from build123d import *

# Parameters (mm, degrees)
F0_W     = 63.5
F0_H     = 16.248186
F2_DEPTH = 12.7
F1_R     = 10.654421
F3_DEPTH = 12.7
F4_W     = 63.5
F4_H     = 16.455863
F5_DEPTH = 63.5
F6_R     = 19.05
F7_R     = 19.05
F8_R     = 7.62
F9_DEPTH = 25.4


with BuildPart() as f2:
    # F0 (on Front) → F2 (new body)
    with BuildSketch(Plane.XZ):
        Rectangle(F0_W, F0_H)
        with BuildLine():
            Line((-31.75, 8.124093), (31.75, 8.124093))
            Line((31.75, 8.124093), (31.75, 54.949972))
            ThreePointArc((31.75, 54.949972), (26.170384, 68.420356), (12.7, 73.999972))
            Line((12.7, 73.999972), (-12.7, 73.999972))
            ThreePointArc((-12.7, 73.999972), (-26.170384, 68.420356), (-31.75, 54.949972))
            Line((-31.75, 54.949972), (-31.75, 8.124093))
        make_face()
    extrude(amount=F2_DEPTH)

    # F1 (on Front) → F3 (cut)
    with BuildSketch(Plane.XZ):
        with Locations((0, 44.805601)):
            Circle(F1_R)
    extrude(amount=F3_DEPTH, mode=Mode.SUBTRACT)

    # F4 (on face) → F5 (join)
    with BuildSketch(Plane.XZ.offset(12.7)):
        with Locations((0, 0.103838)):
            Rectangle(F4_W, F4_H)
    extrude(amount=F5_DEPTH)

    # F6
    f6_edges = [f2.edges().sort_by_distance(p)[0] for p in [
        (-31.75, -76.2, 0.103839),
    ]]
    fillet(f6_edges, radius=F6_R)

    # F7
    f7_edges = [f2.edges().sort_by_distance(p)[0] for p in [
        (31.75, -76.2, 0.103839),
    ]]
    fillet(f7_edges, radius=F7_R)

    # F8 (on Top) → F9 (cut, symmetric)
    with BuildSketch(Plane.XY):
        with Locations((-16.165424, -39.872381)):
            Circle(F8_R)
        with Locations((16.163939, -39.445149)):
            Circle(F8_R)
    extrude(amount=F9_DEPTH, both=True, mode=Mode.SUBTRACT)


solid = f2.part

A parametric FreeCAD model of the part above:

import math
import FreeCAD as App
import Part
import Sketcher
from FreeCAD import Vector
Q = App.Units.Quantity


def edges_at(feature, points):
    """Names of the edges that pass closest to the given points."""
    edges = feature.Shape.Edges
    near = lambda p: min(range(len(edges)), key=lambda i: edges[i].distToShape(Part.Vertex(*p))[0])
    return sorted({f"Edge{near(p) + 1}" for p in points})

doc = App.newDocument("Part")
body = doc.addObject("PartDesign::Body", "Body")

sketch1 = body.newObject("Sketcher::SketchObject", "Sketch")
sketch1.AttachmentSupport = (doc.getObject("XZ_Plane"), [""])
sketch1.MapMode = "FlatFace"
sketch1.addGeometry([
    Part.LineSegment(Vector(-32, -8, 0), Vector(32, -8, 0)),
    Part.LineSegment(Vector(32, -8, 0), Vector(32, 55, 0)),
    Part.ArcOfCircle(Part.Circle(Vector(13, 55, 0), Vector(0, 0, 1), 19), math.radians(0), math.radians(90)),
    Part.LineSegment(Vector(13, 74, 0), Vector(-13, 74, 0)),
    Part.ArcOfCircle(Part.Circle(Vector(-13, 55, 0), Vector(0, 0, 1), 19), math.radians(90), math.radians(180)),
    Part.LineSegment(Vector(-32, 55, 0), Vector(-32, -8, 0)),
], False)
sketch1.addConstraint([
    Sketcher.Constraint("Coincident", 0, 2, 1, 1),
    Sketcher.Constraint("Tangent", 1, 2, 2, 1),
    Sketcher.Constraint("Tangent", 2, 2, 3, 1),
    Sketcher.Constraint("Tangent", 3, 2, 4, 1),
    Sketcher.Constraint("Tangent", 4, 2, 5, 1),
    Sketcher.Constraint("Coincident", 5, 2, 0, 1),
    Sketcher.Constraint("Horizontal", 0),
    Sketcher.Constraint("Vertical", 1),
    Sketcher.Constraint("Horizontal", 3),
    Sketcher.Constraint("Vertical", 5),
    Sketcher.Constraint("Equal", 2, 4),
    Sketcher.Constraint("DistanceX", 3, 2, 3, 1, Q("1 in")),
    Sketcher.Constraint("Radius", 2, Q("0.75 in")),
    Sketcher.Constraint("DistanceX", -1, 1, 2, 3, Q("0.5 in")),
    Sketcher.Constraint("DistanceY", 1, 1, 1, 2, 63.074065),
    Sketcher.Constraint("DistanceY", -1, 1, 2, 3, 54.949971),
])
pad1 = body.newObject("PartDesign::Pad", "Pad")
pad1.Profile = sketch1
pad1.Length = Q("0.5 in")

sketch2 = body.newObject("Sketcher::SketchObject", "Sketch001")
sketch2.AttachmentSupport = (doc.getObject("XZ_Plane"), [""])
sketch2.MapMode = "FlatFace"
sketch2.addGeometry(Part.Circle(Vector(0, 45, 0), Vector(0, 0, 1), 11), False)
sketch2.addConstraint([
    Sketcher.Constraint("PointOnObject", 0, 3, -2),
    Sketcher.Constraint("Diameter", 0, 21.308842),
    Sketcher.Constraint("DistanceY", -1, 1, 0, 3, Q("1.764 in")),
])
pocket1 = body.newObject("PartDesign::Pocket", "Pocket")
pocket1.Profile = sketch2
pocket1.Length = Q("0.5 in")
pocket1.Reversed = True

sketch3 = body.newObject("Sketcher::SketchObject", "Sketch002")
sketch3.AttachmentSupport = (doc.getObject("XZ_Plane"), [""])
sketch3.MapMode = "FlatFace"
sketch3.AttachmentOffset = App.Placement(Vector(0, 0, 0.5 * 25.4), App.Rotation())
sketch3.addGeometry([
    Part.LineSegment(Vector(-32, 8, 0), Vector(-32, -8, 0)),
    Part.LineSegment(Vector(-32, -8, 0), Vector(32, -8, 0)),
    Part.LineSegment(Vector(32, -8, 0), Vector(32, 8, 0)),
    Part.LineSegment(Vector(32, 8, 0), Vector(-32, 8, 0)),
], False)
sketch3.addConstraint([
    Sketcher.Constraint("Coincident", 0, 2, 1, 1),
    Sketcher.Constraint("Coincident", 1, 2, 2, 1),
    Sketcher.Constraint("Coincident", 2, 2, 3, 1),
    Sketcher.Constraint("Coincident", 3, 2, 0, 1),
    Sketcher.Constraint("Vertical", 0),
    Sketcher.Constraint("Horizontal", 1),
    Sketcher.Constraint("Vertical", 2),
    Sketcher.Constraint("Horizontal", 3),
    Sketcher.Constraint("DistanceX", 1, 1, 1, 2, Q("2.5 in")),
    Sketcher.Constraint("DistanceX", 0, 2, -1, 1, Q("1.25 in")),
    Sketcher.Constraint("DistanceY", 0, 2, 0, 1, 16.455863),
    Sketcher.Constraint("DistanceY", -1, 1, 2, 2, 8.33177),
])
pad2 = body.newObject("PartDesign::Pad", "Pad001")
pad2.Profile = sketch3
pad2.Length = Q("2.5 in")
doc.recompute()

fillet = body.newObject("PartDesign::Fillet", "Fillet")
fillet.Base = (pad2, edges_at(pad2, [(-31.75, -76.2, 0.104)]))
fillet.Radius = Q("0.75 in")
doc.recompute()

fillet2 = body.newObject("PartDesign::Fillet", "Fillet001")
fillet2.Base = (fillet, edges_at(fillet, [(31.75, -76.2, 0.104)]))
fillet2.Radius = Q("0.75 in")

sketch4 = body.newObject("Sketcher::SketchObject", "Sketch003")
sketch4.AttachmentSupport = (doc.getObject("XY_Plane"), [""])
sketch4.MapMode = "FlatFace"
sketch4.addGeometry([
    Part.Circle(Vector(-16, -40, 0), Vector(0, 0, 1), 8),
    Part.Circle(Vector(16, -39, 0), Vector(0, 0, 1), 8),
], False)
sketch4.addConstraint([
    Sketcher.Constraint("Equal", 0, 1),
    Sketcher.Constraint("Diameter", 0, Q("0.6 in")),
    Sketcher.Constraint("DistanceY", 0, 3, -1, 1, 39.872381),
    Sketcher.Constraint("DistanceX", -1, 1, 1, 3, 16.163939),
    Sketcher.Constraint("DistanceY", 1, 3, -1, 1, 39.445149),
    Sketcher.Constraint("DistanceX", 0, 3, -1, 1, 16.165424),
])
pocket2 = body.newObject("PartDesign::Pocket", "Pocket001")
pocket2.Profile = sketch4
pocket2.Length = Q("2 in")
pocket2.Midplane = True

doc.recompute()
